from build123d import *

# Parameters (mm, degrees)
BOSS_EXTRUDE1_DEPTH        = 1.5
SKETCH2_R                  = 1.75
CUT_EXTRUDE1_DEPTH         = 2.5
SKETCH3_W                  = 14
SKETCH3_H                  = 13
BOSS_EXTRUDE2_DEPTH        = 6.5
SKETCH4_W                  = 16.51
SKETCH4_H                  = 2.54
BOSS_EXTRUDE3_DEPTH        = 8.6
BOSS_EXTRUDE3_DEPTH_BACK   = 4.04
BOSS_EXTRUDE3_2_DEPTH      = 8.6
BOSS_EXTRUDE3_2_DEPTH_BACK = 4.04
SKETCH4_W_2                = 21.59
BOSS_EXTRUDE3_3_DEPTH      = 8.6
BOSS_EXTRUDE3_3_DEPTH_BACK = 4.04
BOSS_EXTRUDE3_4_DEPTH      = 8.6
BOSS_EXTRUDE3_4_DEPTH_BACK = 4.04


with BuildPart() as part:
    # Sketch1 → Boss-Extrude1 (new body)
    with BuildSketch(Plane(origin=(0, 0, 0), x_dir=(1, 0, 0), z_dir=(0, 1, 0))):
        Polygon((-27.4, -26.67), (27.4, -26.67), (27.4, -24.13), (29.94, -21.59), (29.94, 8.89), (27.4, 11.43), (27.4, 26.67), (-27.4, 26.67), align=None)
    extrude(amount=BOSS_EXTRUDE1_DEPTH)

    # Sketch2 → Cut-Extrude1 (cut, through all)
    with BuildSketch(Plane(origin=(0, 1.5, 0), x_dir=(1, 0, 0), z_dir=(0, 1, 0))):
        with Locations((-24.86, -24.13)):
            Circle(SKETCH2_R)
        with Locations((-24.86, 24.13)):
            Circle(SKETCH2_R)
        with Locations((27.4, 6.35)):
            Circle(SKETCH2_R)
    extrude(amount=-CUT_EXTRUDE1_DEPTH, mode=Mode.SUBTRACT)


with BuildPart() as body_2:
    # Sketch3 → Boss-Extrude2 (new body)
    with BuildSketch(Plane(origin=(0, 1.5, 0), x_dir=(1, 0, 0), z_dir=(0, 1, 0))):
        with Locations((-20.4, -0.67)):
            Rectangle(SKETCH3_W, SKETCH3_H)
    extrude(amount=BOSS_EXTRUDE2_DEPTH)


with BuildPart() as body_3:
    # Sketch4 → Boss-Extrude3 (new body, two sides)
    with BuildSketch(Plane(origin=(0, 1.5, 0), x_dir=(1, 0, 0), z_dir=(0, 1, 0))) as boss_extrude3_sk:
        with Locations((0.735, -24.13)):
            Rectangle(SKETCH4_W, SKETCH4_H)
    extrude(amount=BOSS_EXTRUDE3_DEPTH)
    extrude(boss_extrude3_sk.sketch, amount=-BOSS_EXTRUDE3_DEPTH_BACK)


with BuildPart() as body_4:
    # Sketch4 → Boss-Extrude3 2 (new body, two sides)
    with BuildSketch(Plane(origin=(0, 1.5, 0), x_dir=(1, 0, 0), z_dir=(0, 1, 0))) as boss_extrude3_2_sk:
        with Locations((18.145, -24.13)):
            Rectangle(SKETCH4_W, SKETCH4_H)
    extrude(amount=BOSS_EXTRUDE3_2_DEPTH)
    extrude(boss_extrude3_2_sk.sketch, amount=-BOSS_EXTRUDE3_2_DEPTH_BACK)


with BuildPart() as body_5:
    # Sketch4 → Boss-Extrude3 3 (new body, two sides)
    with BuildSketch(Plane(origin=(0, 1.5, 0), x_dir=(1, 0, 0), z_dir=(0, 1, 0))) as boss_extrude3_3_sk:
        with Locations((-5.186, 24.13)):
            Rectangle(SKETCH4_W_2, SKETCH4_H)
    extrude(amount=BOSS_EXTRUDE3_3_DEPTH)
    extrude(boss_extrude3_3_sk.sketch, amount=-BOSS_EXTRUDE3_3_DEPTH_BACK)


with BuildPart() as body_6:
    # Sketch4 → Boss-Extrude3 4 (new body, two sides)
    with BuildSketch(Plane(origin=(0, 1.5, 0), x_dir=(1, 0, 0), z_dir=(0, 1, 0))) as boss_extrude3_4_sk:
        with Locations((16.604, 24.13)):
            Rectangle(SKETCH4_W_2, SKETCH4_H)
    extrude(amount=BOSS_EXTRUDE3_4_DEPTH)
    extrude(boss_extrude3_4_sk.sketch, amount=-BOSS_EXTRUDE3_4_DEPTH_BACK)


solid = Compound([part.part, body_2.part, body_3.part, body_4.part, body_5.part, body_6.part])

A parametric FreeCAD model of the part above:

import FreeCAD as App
import Part
import Sketcher

doc = App.newDocument("Part")
body = doc.addObject("PartDesign::Body", "Body")

# Sketch on XZ plane
sketch1 = doc.addObject("Sketcher::SketchObject", "Sketch")
body.addObject(sketch1)
sketch1.AttachmentSupport = (doc.XZ_Plane, [""])
sketch1.MapMode = "FlatFace"
sketch1.addGeometry(Part.LineSegment(App.Vector(-27.4, 26.67, 0), App.Vector(27.4, 26.67, 0)), False)
sketch1.addGeometry(Part.LineSegment(App.Vector(27.4, 26.67, 0), App.Vector(27.4, 24.13, 0)), False)
sketch1.addGeometry(Part.LineSegment(App.Vector(27.4, 24.13, 0), App.Vector(29.94, 21.59, 0)), False)
sketch1.addGeometry(Part.LineSegment(App.Vector(29.94, 21.59, 0), App.Vector(29.94, -8.89, 0)), False)
sketch1.addGeometry(Part.LineSegment(App.Vector(29.94, -8.89, 0), App.Vector(27.4, -11.43, 0)), False)
sketch1.addGeometry(Part.LineSegment(App.Vector(27.4, -11.43, 0), App.Vector(27.4, -26.67, 0)), False)
sketch1.addGeometry(Part.LineSegment(App.Vector(27.4, -26.67, 0), App.Vector(-27.4, -26.67, 0)), False)
sketch1.addGeometry(Part.LineSegment(App.Vector(-27.4, -26.67, 0), App.Vector(-27.4, 26.67, 0)), False)
sketch1.addConstraint(Sketcher.Constraint("Coincident", 0, 2, 1, 1))
sketch1.addConstraint(Sketcher.Constraint("Coincident", 1, 2, 2, 1))
sketch1.addConstraint(Sketcher.Constraint("Coincident", 2, 2, 3, 1))
sketch1.addConstraint(Sketcher.Constraint("Coincident", 3, 2, 4, 1))
sketch1.addConstraint(Sketcher.Constraint("Coincident", 4, 2, 5, 1))
sketch1.addConstraint(Sketcher.Constraint("Coincident", 5, 2, 6, 1))
sketch1.addConstraint(Sketcher.Constraint("Coincident", 6, 2, 7, 1))
sketch1.addConstraint(Sketcher.Constraint("Coincident", 7, 2, 0, 1))
sketch1.addConstraint(Sketcher.Constraint("Horizontal", 0))
sketch1.addConstraint(Sketcher.Constraint("Vertical", 1))
sketch1.addConstraint(Sketcher.Constraint("Vertical", 3))
sketch1.addConstraint(Sketcher.Constraint("Vertical", 5))
sketch1.addConstraint(Sketcher.Constraint("Horizontal", 6))
sketch1.addConstraint(Sketcher.Constraint("Vertical", 7))
sketch1.addConstraint(Sketcher.Constraint("Symmetric", 0, 2, 6, 2, -1, 1))
sketch1.addConstraint(Sketcher.Constraint("Perpendicular", 2, 4))
sketch1.addConstraint(Sketcher.Constraint("Vertical", 1, 2, 4, 2))
sketch1.addConstraint(Sketcher.Constraint("Equal", 2, 4))
sketch1.addConstraint(Sketcher.Constraint("DistanceX", 0, 1, 0, 2, 54.8))
sketch1.addConstraint(Sketcher.Constraint("DistanceY", 1, 2, 1, 1, 2.54))
sketch1.addConstraint(Sketcher.Constraint("DistanceY", 3, 2, 3, 1, 30.48))
sketch1.addConstraint(Sketcher.Constraint("DistanceY", 5, 2, 5, 1, 15.24))
sketch1.addConstraint(Sketcher.Constraint("DistanceY", 7, 1, 7, 2, 53.34))
pad1 = doc.addObject("PartDesign::Pad", "Pad")
body.addObject(pad1)
pad1.Profile = sketch1
pad1.Length = 1.5
pad1.Reversed = True

# Sketch on XZ plane
sketch2 = doc.addObject("Sketcher::SketchObject", "Sketch001")
body.addObject(sketch2)
sketch2.AttachmentSupport = (doc.XZ_Plane, [""])
sketch2.MapMode = "FlatFace"
sketch2.AttachmentOffset = App.Placement(App.Vector(0, 0, -1.5), App.Rotation())
sketch2.addGeometry(Part.Circle(App.Vector(-24.86, 24.13, 0), App.Vector(0, 0, 1), 1.75), False)
sketch2.addGeometry(Part.Circle(App.Vector(-24.86, -24.13, 0), App.Vector(0, 0, 1), 1.75), False)
sketch2.addGeometry(Part.Circle(App.Vector(27.4, -6.35, 0), App.Vector(0, 0, 1), 1.75), False)
sketch2.addConstraint(Sketcher.Constraint("Equal", 0, 1))
sketch2.addConstraint(Sketcher.Constraint("Equal", 1, 2))
sketch2.addConstraint(Sketcher.Constraint("Symmetric", 0, 3, 1, 3, -1))
sketch2.addConstraint(Sketcher.Constraint("Diameter", 0, 3.5))
sketch2.addConstraint(Sketcher.Constraint("DistanceX", -1, 1, 2, 3, 27.4))
sketch2.addConstraint(Sketcher.Constraint("DistanceX", 0, 3, -1, 1, 24.86))
sketch2.addConstraint(Sketcher.Constraint("DistanceY", -1, 1, 0, 3, 24.13))
sketch2.addConstraint(Sketcher.Constraint("DistanceY", 2, 3, -1, 1, 6.35))
pocket1 = doc.addObject("PartDesign::Pocket", "Pocket")
body.addObject(pocket1)
pocket1.Profile = sketch2
pocket1.Type = "ThroughAll"
pocket1.Reversed = True
body2 = doc.addObject("PartDesign::Body", "Body001")

# Sketch on XZ plane
sketch3 = doc.addObject("Sketcher::SketchObject", "Sketch002")
body2.addObject(sketch3)
sketch3.AttachmentSupport = (doc.getObject("XZ_Plane001"), [""])
sketch3.MapMode = "FlatFace"
sketch3.AttachmentOffset = App.Placement(App.Vector(0, 0, -1.5), App.Rotation())
sketch3.addGeometry(Part.LineSegment(App.Vector(-27.4, -5.83, 0), App.Vector(-27.4, 7.17, 0)), False)
sketch3.addGeometry(Part.LineSegment(App.Vector(-27.4, 7.17, 0), App.Vector(-13.4, 7.17, 0)), False)
sketch3.addGeometry(Part.LineSegment(App.Vector(-13.4, 7.17, 0), App.Vector(-13.4, -5.83, 0)), False)
sketch3.addGeometry(Part.LineSegment(App.Vector(-13.4, -5.83, 0), App.Vector(-27.4, -5.83, 0)), False)
sketch3.addConstraint(Sketcher.Constraint("Coincident", 0, 2, 1, 1))
sketch3.addConstraint(Sketcher.Constraint("Coincident", 1, 2, 2, 1))
sketch3.addConstraint(Sketcher.Constraint("Coincident", 2, 2, 3, 1))
sketch3.addConstraint(Sketcher.Constraint("Coincident", 3, 2, 0, 1))
sketch3.addConstraint(Sketcher.Constraint("Vertical", 0))
sketch3.addConstraint(Sketcher.Constraint("Horizontal", 1))
sketch3.addConstraint(Sketcher.Constraint("Vertical", 2))
sketch3.addConstraint(Sketcher.Constraint("Horizontal", 3))
sketch3.addConstraint(Sketcher.Constraint("DistanceX", 1, 1, 1, 2, 14.0))
sketch3.addConstraint(Sketcher.Constraint("DistanceY", 0, 1, 0, 2, 13.0))
sketch3.addConstraint(Sketcher.Constraint("DistanceX", 0, 2, -1, 1, 27.4))
sketch3.addConstraint(Sketcher.Constraint("DistanceY", -1, 1, 0, 2, 7.17))
pad2 = doc.addObject("PartDesign::Pad", "Pad001")
body2.addObject(pad2)
pad2.Profile = sketch3
pad2.Length = 6.5
pad2.Reversed = True
body3 = doc.addObject("PartDesign::Body", "Body002")

# Sketch on XZ plane
sketch4 = doc.addObject("Sketcher::SketchObject", "Sketch003")
body3.addObject(sketch4)
sketch4.AttachmentSupport = (doc.getObject("XZ_Plane002"), [""])
sketch4.MapMode = "FlatFace"
sketch4.AttachmentOffset = App.Placement(App.Vector(0, 0, -1.5), App.Rotation())
sketch4.addGeometry(Part.LineSegment(App.Vector(-7.52, 22.86, 0), App.Vector(-7.52, 25.4, 0)), False)
sketch4.addGeometry(Part.LineSegment(App.Vector(-7.52, 25.4, 0), App.Vector(8.99, 25.4, 0)), False)
sketch4.addGeometry(Part.LineSegment(App.Vector(8.99, 25.4, 0), App.Vector(8.99, 22.86, 0)), False)
sketch4.addGeometry(Part.LineSegment(App.Vector(8.99, 22.86, 0), App.Vector(-7.52, 22.86, 0)), False)
sketch4.addConstraint(Sketcher.Constraint("Coincident", 0, 2, 1, 1))
sketch4.addConstraint(Sketcher.Constraint("Coincident", 1, 2, 2, 1))
sketch4.addConstraint(Sketcher.Constraint("Coincident", 2, 2, 3, 1))
sketch4.addConstraint(Sketcher.Constraint("Coincident", 3, 2, 0, 1))
sketch4.addConstraint(Sketcher.Constraint("Vertical", 0))
sketch4.addConstraint(Sketcher.Constraint("Horizontal", 1))
sketch4.addConstraint(Sketcher.Constraint("Vertical", 2))
sketch4.addConstraint(Sketcher.Constraint("Horizontal", 3))
sketch4.addConstraint(Sketcher.Constraint("DistanceX", 1, 1, 1, 2, 16.51))
sketch4.addConstraint(Sketcher.Constraint("DistanceY", 0, 1, 0, 2, 2.54))
sketch4.addConstraint(Sketcher.Constraint("DistanceY", -1, 1, 0, 2, 25.4))
sketch4.addConstraint(Sketcher.Constraint("DistanceX", 0, 2, -1, 1, 7.52))
pad3 = doc.addObject("PartDesign::Pad", "Pad002")
body3.addObject(pad3)
pad3.Profile = sketch4
pad3.Type = "TwoLengths"
pad3.Length = 8.6
pad3.Length2 = 4.04
pad3.Reversed = True
body4 = doc.addObject("PartDesign::Body", "Body003")

# Sketch on XZ plane
sketch5 = doc.addObject("Sketcher::SketchObject", "Sketch004")
body4.addObject(sketch5)
sketch5.AttachmentSupport = (doc.getObject("XZ_Plane003"), [""])
sketch5.MapMode = "FlatFace"
sketch5.AttachmentOffset = App.Placement(App.Vector(0, 0, -1.5), App.Rotation())
sketch5.addGeometry(Part.LineSegment(App.Vector(9.89, 22.86, 0), App.Vector(9.89, 25.4, 0)), False)
sketch5.addGeometry(Part.LineSegment(App.Vector(9.89, 25.4, 0), App.Vector(26.4, 25.4, 0)), False)
sketch5.addGeometry(Part.LineSegment(App.Vector(26.4, 25.4, 0), App.Vector(26.4, 22.86, 0)), False)
sketch5.addGeometry(Part.LineSegment(App.Vector(26.4, 22.86, 0), App.Vector(9.89, 22.86, 0)), False)
sketch5.addConstraint(Sketcher.Constraint("Coincident", 0, 2, 1, 1))
sketch5.addConstraint(Sketcher.Constraint("Coincident", 1, 2, 2, 1))
sketch5.addConstraint(Sketcher.Constraint("Coincident", 2, 2, 3, 1))
sketch5.addConstraint(Sketcher.Constraint("Coincident", 3, 2, 0, 1))
sketch5.addConstraint(Sketcher.Constraint("Vertical", 0))
sketch5.addConstraint(Sketcher.Constraint("Horizontal", 1))
sketch5.addConstraint(Sketcher.Constraint("Vertical", 2))
sketch5.addConstraint(Sketcher.Constraint("Horizontal", 3))
sketch5.addConstraint(Sketcher.Constraint("DistanceX", 1, 1, 1, 2, 16.51))
sketch5.addConstraint(Sketcher.Constraint("DistanceY", 0, 1, 0, 2, 2.54))
sketch5.addConstraint(Sketcher.Constraint("DistanceY", -1, 1, 0, 2, 25.4))
sketch5.addConstraint(Sketcher.Constraint("DistanceX", -1, 1, 1, 2, 26.4))
pad4 = doc.addObject("PartDesign::Pad", "Pad003")
body4.addObject(pad4)
pad4.Profile = sketch5
pad4.Type = "TwoLengths"
pad4.Length = 8.6
pad4.Length2 = 4.04
pad4.Reversed = True
body5 = doc.addObject("PartDesign::Body", "Body004")

# Sketch on XZ plane
sketch6 = doc.addObject("Sketcher::SketchObject", "Sketch005")
body5.addObject(sketch6)
sketch6.AttachmentSupport = (doc.getObject("XZ_Plane004"), [""])
sketch6.MapMode = "FlatFace"
sketch6.AttachmentOffset = App.Placement(App.Vector(0, 0, -1.5), App.Rotation())
sketch6.addGeometry(Part.LineSegment(App.Vector(-15.981, -25.4, 0), App.Vector(-15.981, -22.86, 0)), False)
sketch6.addGeometry(Part.LineSegment(App.Vector(-15.981, -22.86, 0), App.Vector(5.609, -22.86, 0)), False)
sketch6.addGeometry(Part.LineSegment(App.Vector(5.609, -22.86, 0), App.Vector(5.609, -25.4, 0)), False)
sketch6.addGeometry(Part.LineSegment(App.Vector(5.609, -25.4, 0), App.Vector(-15.981, -25.4, 0)), False)
sketch6.addConstraint(Sketcher.Constraint("Coincident", 0, 2, 1, 1))
sketch6.addConstraint(Sketcher.Constraint("Coincident", 1, 2, 2, 1))
sketch6.addConstraint(Sketcher.Constraint("Coincident", 2, 2, 3, 1))
sketch6.addConstraint(Sketcher.Constraint("Coincident", 3, 2, 0, 1))
sketch6.addConstraint(Sketcher.Constraint("Vertical", 0))
sketch6.addConstraint(Sketcher.Constraint("Horizontal", 1))
sketch6.addConstraint(Sketcher.Constraint("Vertical", 2))
sketch6.addConstraint(Sketcher.Constraint("Horizontal", 3))
sketch6.addConstraint(Sketcher.Constraint("DistanceX", 1, 1, 1, 2, 21.59))
sketch6.addConstraint(Sketcher.Constraint("DistanceY", 0, 1, 0, 2, 2.54))
sketch6.addConstraint(Sketcher.Constraint("DistanceY", 2, 2, -1, 1, 25.4))
sketch6.addConstraint(Sketcher.Constraint("DistanceX", 0, 2, -1, 1, 15.981))
pad5 = doc.addObject("PartDesign::Pad", "Pad004")
body5.addObject(pad5)
pad5.Profile = sketch6
pad5.Type = "TwoLengths"
pad5.Length = 8.6
pad5.Length2 = 4.04
pad5.Reversed = True
body6 = doc.addObject("PartDesign::Body", "Body005")

# Sketch on XZ plane
sketch7 = doc.addObject("Sketcher::SketchObject", "Sketch006")
body6.addObject(sketch7)
sketch7.AttachmentSupport = (doc.getObject("XZ_Plane005"), [""])
sketch7.MapMode = "FlatFace"
sketch7.AttachmentOffset = App.Placement(App.Vector(0, 0, -1.5), App.Rotation())
sketch7.addGeometry(Part.LineSegment(App.Vector(5.809, -25.4, 0), App.Vector(5.809, -22.86, 0)), False)
sketch7.addGeometry(Part.LineSegment(App.Vector(5.809, -22.86, 0), App.Vector(27.399, -22.86, 0)), False)
sketch7.addGeometry(Part.LineSegment(App.Vector(27.399, -22.86, 0), App.Vector(27.399, -25.4, 0)), False)
sketch7.addGeometry(Part.LineSegment(App.Vector(27.399, -25.4, 0), App.Vector(5.809, -25.4, 0)), False)
sketch7.addConstraint(Sketcher.Constraint("Coincident", 0, 2, 1, 1))
sketch7.addConstraint(Sketcher.Constraint("Coincident", 1, 2, 2, 1))
sketch7.addConstraint(Sketcher.Constraint("Coincident", 2, 2, 3, 1))
sketch7.addConstraint(Sketcher.Constraint("Coincident", 3, 2, 0, 1))
sketch7.addConstraint(Sketcher.Constraint("Vertical", 0))
sketch7.addConstraint(Sketcher.Constraint("Horizontal", 1))
sketch7.addConstraint(Sketcher.Constraint("Vertical", 2))
sketch7.addConstraint(Sketcher.Constraint("Horizontal", 3))
sketch7.addConstraint(Sketcher.Constraint("DistanceX", 1, 1, 1, 2, 21.59))
sketch7.addConstraint(Sketcher.Constraint("DistanceY", 0, 1, 0, 2, 2.54))
sketch7.addConstraint(Sketcher.Constraint("DistanceY", 2, 2, -1, 1, 25.4))
sketch7.addConstraint(Sketcher.Constraint("DistanceX", -1, 1, 0, 2, 5.809))
pad6 = doc.addObject("PartDesign::Pad", "Pad005")
body6.addObject(pad6)
pad6.Profile = sketch7
pad6.Type = "TwoLengths"
pad6.Length = 8.6
pad6.Length2 = 4.04
pad6.Reversed = True

doc.recompute()
